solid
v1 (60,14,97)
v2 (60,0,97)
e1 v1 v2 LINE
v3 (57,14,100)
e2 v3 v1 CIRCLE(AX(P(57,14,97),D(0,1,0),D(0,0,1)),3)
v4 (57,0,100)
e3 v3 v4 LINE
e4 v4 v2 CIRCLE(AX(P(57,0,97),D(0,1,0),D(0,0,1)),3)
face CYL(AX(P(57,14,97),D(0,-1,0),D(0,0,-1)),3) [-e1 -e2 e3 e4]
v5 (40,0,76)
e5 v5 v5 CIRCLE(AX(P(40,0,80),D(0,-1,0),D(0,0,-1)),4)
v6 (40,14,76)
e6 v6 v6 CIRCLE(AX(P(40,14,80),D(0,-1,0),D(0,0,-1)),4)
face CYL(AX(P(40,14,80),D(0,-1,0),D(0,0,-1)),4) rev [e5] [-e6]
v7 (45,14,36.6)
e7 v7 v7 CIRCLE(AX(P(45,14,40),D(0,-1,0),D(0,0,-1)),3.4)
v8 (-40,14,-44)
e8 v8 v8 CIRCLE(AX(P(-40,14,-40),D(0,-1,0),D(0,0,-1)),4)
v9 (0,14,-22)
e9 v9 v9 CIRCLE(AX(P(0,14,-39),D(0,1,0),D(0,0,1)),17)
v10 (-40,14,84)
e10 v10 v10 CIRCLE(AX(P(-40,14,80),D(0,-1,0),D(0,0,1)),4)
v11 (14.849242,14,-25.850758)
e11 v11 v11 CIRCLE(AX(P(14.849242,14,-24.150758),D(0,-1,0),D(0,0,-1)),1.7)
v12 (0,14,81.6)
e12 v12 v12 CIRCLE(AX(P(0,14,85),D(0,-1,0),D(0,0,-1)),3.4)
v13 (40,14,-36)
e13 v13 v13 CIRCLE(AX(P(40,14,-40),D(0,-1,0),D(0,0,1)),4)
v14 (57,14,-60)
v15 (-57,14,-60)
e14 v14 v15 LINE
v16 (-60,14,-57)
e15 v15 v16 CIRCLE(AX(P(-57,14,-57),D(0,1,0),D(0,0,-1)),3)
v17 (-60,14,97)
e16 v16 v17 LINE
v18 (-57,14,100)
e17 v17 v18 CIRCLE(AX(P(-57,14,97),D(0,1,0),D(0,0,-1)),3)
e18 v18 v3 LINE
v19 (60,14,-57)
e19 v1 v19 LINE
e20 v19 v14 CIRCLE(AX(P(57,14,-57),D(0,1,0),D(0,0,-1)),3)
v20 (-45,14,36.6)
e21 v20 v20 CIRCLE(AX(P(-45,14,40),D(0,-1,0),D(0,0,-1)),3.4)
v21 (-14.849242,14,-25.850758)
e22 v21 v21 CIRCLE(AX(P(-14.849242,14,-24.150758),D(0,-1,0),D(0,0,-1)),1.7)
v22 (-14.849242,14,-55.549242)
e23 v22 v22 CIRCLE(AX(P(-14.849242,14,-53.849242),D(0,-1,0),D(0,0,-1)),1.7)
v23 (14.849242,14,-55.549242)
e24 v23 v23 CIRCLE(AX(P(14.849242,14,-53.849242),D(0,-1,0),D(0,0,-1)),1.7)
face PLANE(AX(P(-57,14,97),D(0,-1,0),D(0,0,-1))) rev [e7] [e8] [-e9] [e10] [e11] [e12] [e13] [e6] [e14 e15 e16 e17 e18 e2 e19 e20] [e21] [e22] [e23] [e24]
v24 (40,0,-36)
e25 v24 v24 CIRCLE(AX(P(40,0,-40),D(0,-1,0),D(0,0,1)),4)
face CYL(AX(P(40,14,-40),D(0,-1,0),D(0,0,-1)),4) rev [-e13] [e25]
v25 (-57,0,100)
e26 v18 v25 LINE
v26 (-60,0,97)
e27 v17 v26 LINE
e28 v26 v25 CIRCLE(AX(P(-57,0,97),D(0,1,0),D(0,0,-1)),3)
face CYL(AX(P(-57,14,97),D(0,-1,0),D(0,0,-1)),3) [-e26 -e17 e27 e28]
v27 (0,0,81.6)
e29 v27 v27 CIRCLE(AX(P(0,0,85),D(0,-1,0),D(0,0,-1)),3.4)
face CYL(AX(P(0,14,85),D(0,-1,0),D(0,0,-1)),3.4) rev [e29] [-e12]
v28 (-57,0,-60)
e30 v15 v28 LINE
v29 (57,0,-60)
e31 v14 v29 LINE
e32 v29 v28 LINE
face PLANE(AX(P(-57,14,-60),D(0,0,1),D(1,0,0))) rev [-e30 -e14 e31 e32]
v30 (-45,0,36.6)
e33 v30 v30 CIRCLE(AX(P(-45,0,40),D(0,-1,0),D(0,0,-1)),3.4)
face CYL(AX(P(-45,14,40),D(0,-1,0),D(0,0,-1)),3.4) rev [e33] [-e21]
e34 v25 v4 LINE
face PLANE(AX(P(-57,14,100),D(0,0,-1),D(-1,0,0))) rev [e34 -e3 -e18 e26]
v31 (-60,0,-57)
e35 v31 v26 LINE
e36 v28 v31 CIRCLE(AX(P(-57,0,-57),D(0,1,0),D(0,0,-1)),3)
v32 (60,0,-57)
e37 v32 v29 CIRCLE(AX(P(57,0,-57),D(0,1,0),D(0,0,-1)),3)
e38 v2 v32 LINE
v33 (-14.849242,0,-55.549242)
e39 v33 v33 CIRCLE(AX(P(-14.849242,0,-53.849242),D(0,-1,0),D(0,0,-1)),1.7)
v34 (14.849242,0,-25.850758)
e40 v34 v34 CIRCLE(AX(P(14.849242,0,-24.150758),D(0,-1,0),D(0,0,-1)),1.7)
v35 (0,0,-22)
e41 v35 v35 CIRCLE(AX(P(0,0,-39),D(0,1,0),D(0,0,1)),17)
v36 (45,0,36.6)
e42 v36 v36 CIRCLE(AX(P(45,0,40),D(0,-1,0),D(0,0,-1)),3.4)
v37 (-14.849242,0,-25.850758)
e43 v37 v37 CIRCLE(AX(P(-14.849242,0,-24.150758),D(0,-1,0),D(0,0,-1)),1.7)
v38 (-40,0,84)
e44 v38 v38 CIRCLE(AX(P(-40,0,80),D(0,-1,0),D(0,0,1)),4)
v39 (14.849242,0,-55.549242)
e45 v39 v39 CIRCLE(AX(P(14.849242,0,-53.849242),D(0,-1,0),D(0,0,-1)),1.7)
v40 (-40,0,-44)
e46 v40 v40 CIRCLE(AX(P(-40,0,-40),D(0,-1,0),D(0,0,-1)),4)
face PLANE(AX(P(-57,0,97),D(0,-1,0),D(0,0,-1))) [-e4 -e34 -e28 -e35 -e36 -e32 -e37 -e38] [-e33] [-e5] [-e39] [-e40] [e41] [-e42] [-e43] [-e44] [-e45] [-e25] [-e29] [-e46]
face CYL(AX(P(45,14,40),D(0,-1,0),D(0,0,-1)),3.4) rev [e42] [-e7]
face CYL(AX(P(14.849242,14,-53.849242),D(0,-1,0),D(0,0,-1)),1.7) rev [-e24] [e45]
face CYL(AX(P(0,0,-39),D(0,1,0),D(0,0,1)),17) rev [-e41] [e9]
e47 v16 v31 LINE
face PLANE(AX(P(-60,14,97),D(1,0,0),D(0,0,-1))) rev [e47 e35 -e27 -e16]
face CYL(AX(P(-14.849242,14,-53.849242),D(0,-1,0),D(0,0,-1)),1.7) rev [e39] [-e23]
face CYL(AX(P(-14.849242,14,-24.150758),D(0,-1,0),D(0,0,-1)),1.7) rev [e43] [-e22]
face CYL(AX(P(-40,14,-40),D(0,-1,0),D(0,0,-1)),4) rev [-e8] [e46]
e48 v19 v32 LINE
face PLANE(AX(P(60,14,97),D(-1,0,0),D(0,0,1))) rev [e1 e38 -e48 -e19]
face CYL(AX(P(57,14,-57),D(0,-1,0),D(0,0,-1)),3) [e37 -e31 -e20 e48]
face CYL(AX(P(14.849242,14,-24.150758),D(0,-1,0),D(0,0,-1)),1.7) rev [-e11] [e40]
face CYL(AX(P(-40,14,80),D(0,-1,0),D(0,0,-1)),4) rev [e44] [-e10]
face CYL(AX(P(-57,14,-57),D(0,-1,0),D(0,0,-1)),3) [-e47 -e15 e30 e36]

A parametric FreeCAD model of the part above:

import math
import FreeCAD as App
import Part
import Sketcher

V = App.Vector

doc = App.newDocument("Part")
params = doc.addObject("Spreadsheet::Sheet", "Params")
for row, (alias, value) in enumerate([
    ("sketch1_radius", "3 mm"),
    ("sketch1_width", "114 mm"),
    ("sketch1_height", "154 mm"),
    ("pad1_length", "14 mm"),
    ("sketch2_diameter", "3.4 mm"),
    ("sketch3_diameter", "6.8 mm"),
    ("sketch4_diameter", "34 mm"),
    ("sketch5_diameter", "8 mm"),
], start=1):
    params.set(f"A{row}", alias)
    params.set(f"B{row}", "=" + value)
    params.setAlias(f"B{row}", alias)

body = doc.addObject("PartDesign::Body", "Body")

sketch1 = body.newObject("Sketcher::SketchObject", "Sketch")
sketch1.AttachmentSupport = (doc.getObject("XZ_Plane"), [""])
sketch1.MapMode = "FlatFace"
sketch1.addGeometry([
    Part.LineSegment(V(-57, 100, 0), V(57, 100, 0)),
    Part.ArcOfCircle(Part.Circle(V(57, 97, 0), V(0, 0, 1), 3), math.radians(0), math.radians(90)),
    Part.LineSegment(V(60, 97, 0), V(60, -57, 0)),
    Part.ArcOfCircle(Part.Circle(V(57, -57, 0), V(0, 0, 1), 3), math.radians(-90), math.radians(0)),
    Part.LineSegment(V(57, -60, 0), V(-57, -60, 0)),
    Part.ArcOfCircle(Part.Circle(V(-57, -57, 0), V(0, 0, 1), 3), math.radians(180), math.radians(270)),
    Part.LineSegment(V(-60, -57, 0), V(-60, 97, 0)),
    Part.ArcOfCircle(Part.Circle(V(-57, 97, 0), V(0, 0, 1), 3), math.radians(90), math.radians(180)),
], False)
sketch1.addConstraint([
    Sketcher.Constraint("Tangent", 0, 2, 1, 2),
    Sketcher.Constraint("Tangent", 1, 1, 2, 1),
    Sketcher.Constraint("Tangent", 2, 2, 3, 2),
    Sketcher.Constraint("Tangent", 3, 1, 4, 1),
    Sketcher.Constraint("Tangent", 4, 2, 5, 2),
    Sketcher.Constraint("Tangent", 5, 1, 6, 1),
    Sketcher.Constraint("Tangent", 6, 2, 7, 2),
    Sketcher.Constraint("Tangent", 7, 1, 0, 1),
    Sketcher.Constraint("Horizontal", 0),
    Sketcher.Constraint("Vertical", 2),
    Sketcher.Constraint("Horizontal", 4),
    Sketcher.Constraint("Vertical", 6),
    Sketcher.Constraint("Equal", 1, 3),
    Sketcher.Constraint("Equal", 3, 5),
    Sketcher.Constraint("Equal", 5, 7),
    Sketcher.Constraint("Radius", 1, 3.0),
    Sketcher.Constraint("DistanceX", 0, 1, 0, 2, 114.0),
    Sketcher.Constraint("DistanceY", 2, 2, 2, 1, 154.0),
    Sketcher.Constraint("DistanceX", -1, 1, 1, 3, 57.0),
    Sketcher.Constraint("DistanceY", -1, 1, 1, 3, 97.0),
])
sketch1.setExpression("Constraints[15]", "Params.sketch1_radius")
sketch1.setExpression("Constraints[16]", "Params.sketch1_width")
sketch1.setExpression("Constraints[17]", "Params.sketch1_height")
pad1 = body.newObject("PartDesign::Pad", "Pad")
pad1.Profile = sketch1
pad1.setExpression("Length", "Params.pad1_length")
pad1.Reversed = True

sketch2 = body.newObject("Sketcher::SketchObject", "Sketch001")
sketch2.AttachmentSupport = (doc.getObject("XZ_Plane"), [""])
sketch2.MapMode = "FlatFace"
sketch2.addGeometry([
    Part.Circle(V(14.8, -24.2, 0), V(0, 0, 1), 1.7),
    Part.Circle(V(14.8, -53.8, 0), V(0, 0, 1), 1.7),
    Part.Circle(V(-14.8, -53.8, 0), V(0, 0, 1), 1.7),
    Part.Circle(V(-14.8, -24.2, 0), V(0, 0, 1), 1.7),
], False)
sketch2.addConstraint([
    Sketcher.Constraint("Equal", 0, 1),
    Sketcher.Constraint("Equal", 1, 2),
    Sketcher.Constraint("Equal", 2, 3),
    Sketcher.Constraint("Symmetric", 1, 3, 2, 3, -2),
    Sketcher.Constraint("Symmetric", 0, 3, 3, 3, -2),
    Sketcher.Constraint("Vertical", 0, 3, 1, 3),
    Sketcher.Constraint("Diameter", 0, 3.4),
    Sketcher.Constraint("DistanceX", -1, 1, 0, 3, 14.849242),
    Sketcher.Constraint("DistanceY", 0, 3, -1, 1, 24.150758),
    Sketcher.Constraint("DistanceY", 1, 3, -1, 1, 53.849242),
])
sketch2.setExpression("Constraints[6]", "Params.sketch2_diameter")
pocket1 = body.newObject("PartDesign::Pocket", "Pocket")
pocket1.Profile = sketch2
pocket1.Type = "ThroughAll"

sketch3 = body.newObject("Sketcher::SketchObject", "Sketch002")
sketch3.AttachmentSupport = (doc.getObject("XZ_Plane"), [""])
sketch3.MapMode = "FlatFace"
sketch3.addGeometry([
    Part.Circle(V(0, 85, 0), V(0, 0, 1), 3.4),
    Part.Circle(V(45, 40, 0), V(0, 0, 1), 3.4),
    Part.Circle(V(-45, 40, 0), V(0, 0, 1), 3.4),
], False)
sketch3.addConstraint([
    Sketcher.Constraint("Equal", 0, 1),
    Sketcher.Constraint("Equal", 1, 2),
    Sketcher.Constraint("Symmetric", 1, 3, 2, 3, -2),
    Sketcher.Constraint("PointOnObject", 0, 3, -2),
    Sketcher.Constraint("Diameter", 0, 6.8),
    Sketcher.Constraint("DistanceY", -1, 1, 0, 3, 85.0),
    Sketcher.Constraint("DistanceX", -1, 1, 1, 3, 45.0),
    Sketcher.Constraint("DistanceY", -1, 1, 1, 3, 40.0),
])
sketch3.setExpression("Constraints[4]", "Params.sketch3_diameter")
pocket2 = body.newObject("PartDesign::Pocket", "Pocket001")
pocket2.Profile = sketch3
pocket2.Type = "ThroughAll"

sketch4 = body.newObject("Sketcher::SketchObject", "Sketch003")
sketch4.AttachmentSupport = (doc.getObject("XZ_Plane"), [""])
sketch4.MapMode = "FlatFace"
sketch4.AttachmentOffset = App.Placement(V(0, 0, -14), App.Rotation())
sketch4.addGeometry(Part.Circle(V(0, -39, 0), V(0, 0, 1), 17), False)
sketch4.addConstraint([
    Sketcher.Constraint("PointOnObject", 0, 3, -2),
    Sketcher.Constraint("Diameter", 0, 34.0),
    Sketcher.Constraint("DistanceY", 0, 3, -1, 1, 39.0),
])
sketch4.setExpression("Constraints[1]", "Params.sketch4_diameter")
pocket3 = body.newObject("PartDesign::Pocket", "Pocket002")
pocket3.Profile = sketch4
pocket3.Type = "ThroughAll"
pocket3.Reversed = True

sketch5 = body.newObject("Sketcher::SketchObject", "Sketch004")
sketch5.AttachmentSupport = (doc.getObject("XZ_Plane"), [""])
sketch5.MapMode = "FlatFace"
sketch5.addGeometry([
    Part.Circle(V(40, 80, 0), V(0, 0, 1), 4),
    Part.Circle(V(-40, 80, 0), V(0, 0, 1), 4),
    Part.Circle(V(40, -40, 0), V(0, 0, 1), 4),
    Part.Circle(V(-40, -40, 0), V(0, 0, 1), 4),
], False)
sketch5.addConstraint([
    Sketcher.Constraint("Equal", 0, 1),
    Sketcher.Constraint("Equal", 1, 2),
    Sketcher.Constraint("Equal", 2, 3),
    Sketcher.Constraint("Symmetric", 0, 3, 1, 3, -2),
    Sketcher.Constraint("Symmetric", 2, 3, 3, 3, -2),
    Sketcher.Constraint("Vertical", 0, 3, 2, 3),
    Sketcher.Constraint("Diameter", 0, 8.0),
    Sketcher.Constraint("DistanceX", -1, 1, 0, 3, 40.0),
    Sketcher.Constraint("DistanceY", -1, 1, 0, 3, 80.0),
    Sketcher.Constraint("DistanceY", 2, 3, -1, 1, 40.0),
])
sketch5.setExpression("Constraints[6]", "Params.sketch5_diameter")
pocket4 = body.newObject("PartDesign::Pocket", "Pocket003")
pocket4.Profile = sketch5
pocket4.Type = "ThroughAll"

doc.recompute()
